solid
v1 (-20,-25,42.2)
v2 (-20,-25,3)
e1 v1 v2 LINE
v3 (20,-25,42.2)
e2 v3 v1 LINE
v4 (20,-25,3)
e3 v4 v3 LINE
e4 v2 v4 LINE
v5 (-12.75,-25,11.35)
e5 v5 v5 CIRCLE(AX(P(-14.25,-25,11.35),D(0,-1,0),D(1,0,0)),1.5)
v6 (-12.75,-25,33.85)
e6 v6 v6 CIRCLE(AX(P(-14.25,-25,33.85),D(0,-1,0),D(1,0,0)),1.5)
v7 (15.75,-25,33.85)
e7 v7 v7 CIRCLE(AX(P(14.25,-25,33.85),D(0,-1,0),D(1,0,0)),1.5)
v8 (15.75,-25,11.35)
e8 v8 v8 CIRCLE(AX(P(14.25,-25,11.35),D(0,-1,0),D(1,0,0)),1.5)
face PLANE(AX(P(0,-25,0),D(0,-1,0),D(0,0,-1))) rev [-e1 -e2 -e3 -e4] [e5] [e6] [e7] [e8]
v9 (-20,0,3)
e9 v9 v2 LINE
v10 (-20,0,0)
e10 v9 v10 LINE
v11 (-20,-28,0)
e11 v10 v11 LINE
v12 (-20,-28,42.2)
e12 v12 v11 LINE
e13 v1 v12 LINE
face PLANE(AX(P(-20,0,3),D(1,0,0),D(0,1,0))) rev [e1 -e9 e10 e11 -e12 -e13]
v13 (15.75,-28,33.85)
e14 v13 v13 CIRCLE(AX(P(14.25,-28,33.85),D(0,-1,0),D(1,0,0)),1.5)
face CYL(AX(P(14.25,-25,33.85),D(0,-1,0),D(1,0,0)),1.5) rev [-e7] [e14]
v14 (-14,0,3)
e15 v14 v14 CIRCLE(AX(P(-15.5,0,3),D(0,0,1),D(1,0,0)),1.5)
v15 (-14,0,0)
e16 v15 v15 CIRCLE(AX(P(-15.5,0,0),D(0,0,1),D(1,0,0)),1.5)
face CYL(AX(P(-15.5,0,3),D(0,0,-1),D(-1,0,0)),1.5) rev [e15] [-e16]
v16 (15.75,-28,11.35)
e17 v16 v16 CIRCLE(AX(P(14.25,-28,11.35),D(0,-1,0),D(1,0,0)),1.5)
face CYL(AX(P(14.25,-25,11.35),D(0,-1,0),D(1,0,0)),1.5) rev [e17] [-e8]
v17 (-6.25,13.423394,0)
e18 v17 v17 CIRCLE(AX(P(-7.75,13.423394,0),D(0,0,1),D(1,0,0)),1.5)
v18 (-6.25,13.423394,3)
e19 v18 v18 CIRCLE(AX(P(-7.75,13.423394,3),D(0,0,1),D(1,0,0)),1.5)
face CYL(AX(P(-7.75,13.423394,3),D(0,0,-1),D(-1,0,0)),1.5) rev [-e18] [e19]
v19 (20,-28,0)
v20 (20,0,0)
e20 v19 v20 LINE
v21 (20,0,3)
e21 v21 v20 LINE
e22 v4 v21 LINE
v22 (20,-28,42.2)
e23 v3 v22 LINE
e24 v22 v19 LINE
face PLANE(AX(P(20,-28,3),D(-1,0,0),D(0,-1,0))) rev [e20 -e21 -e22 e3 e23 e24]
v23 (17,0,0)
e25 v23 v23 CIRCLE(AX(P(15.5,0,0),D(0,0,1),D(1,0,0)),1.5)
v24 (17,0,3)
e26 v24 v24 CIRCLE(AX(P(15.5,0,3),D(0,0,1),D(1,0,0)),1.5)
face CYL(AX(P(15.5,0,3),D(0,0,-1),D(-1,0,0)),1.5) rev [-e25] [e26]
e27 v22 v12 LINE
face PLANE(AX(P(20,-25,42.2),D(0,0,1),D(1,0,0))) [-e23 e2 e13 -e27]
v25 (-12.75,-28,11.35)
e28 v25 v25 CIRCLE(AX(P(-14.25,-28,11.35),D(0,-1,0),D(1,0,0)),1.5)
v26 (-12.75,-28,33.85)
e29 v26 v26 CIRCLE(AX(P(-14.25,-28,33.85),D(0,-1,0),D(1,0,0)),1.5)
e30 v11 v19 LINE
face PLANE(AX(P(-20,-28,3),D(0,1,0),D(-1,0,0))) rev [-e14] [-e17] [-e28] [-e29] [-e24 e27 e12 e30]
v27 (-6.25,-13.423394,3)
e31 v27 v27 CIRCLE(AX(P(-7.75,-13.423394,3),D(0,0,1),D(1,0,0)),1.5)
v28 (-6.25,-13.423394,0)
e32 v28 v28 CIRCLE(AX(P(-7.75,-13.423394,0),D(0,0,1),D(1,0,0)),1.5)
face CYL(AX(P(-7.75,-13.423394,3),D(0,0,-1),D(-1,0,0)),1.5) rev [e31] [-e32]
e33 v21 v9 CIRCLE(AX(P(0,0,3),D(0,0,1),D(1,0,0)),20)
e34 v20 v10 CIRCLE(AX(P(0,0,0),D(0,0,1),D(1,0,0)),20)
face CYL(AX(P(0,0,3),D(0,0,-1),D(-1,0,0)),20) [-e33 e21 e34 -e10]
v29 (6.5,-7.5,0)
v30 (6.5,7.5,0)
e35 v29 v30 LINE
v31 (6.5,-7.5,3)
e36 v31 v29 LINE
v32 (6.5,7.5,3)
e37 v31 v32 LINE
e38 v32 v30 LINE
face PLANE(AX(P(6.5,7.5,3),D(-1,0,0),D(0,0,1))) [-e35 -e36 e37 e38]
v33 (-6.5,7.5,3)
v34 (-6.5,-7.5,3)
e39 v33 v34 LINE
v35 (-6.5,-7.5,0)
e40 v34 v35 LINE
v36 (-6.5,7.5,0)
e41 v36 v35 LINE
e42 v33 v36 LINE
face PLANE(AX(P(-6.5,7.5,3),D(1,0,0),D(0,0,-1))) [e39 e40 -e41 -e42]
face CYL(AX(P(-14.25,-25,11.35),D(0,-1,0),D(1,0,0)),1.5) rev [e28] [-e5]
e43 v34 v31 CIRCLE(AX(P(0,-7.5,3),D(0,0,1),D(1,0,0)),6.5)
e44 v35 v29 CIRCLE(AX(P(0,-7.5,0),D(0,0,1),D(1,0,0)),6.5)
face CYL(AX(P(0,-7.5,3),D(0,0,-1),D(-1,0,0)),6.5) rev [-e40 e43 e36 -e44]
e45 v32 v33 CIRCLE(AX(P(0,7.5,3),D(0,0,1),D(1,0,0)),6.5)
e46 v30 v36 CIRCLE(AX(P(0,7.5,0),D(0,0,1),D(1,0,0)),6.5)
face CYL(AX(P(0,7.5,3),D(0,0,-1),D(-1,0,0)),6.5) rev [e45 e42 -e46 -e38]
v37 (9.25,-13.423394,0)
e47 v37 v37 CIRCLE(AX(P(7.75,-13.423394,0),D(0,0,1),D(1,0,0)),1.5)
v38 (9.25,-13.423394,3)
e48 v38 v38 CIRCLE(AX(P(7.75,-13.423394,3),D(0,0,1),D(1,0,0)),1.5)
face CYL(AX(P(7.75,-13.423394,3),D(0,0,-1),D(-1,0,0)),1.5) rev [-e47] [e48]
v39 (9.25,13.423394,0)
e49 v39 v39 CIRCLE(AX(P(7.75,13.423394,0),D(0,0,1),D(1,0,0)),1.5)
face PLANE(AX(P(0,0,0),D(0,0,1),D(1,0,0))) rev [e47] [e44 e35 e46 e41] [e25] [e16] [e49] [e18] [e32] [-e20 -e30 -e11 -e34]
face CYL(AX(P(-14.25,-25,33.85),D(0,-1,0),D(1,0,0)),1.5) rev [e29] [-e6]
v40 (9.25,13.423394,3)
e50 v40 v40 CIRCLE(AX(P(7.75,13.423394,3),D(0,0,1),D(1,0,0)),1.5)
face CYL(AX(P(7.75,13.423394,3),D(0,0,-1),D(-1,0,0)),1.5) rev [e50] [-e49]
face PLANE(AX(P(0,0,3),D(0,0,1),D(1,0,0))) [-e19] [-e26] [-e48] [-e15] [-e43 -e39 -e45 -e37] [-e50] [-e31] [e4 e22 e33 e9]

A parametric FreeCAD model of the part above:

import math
import FreeCAD as App
import Part
import Sketcher
from FreeCAD import Vector

doc = App.newDocument("Part")
body = doc.addObject("PartDesign::Body", "Body")

sketch1 = doc.addObject("Sketcher::SketchObject", "Sketch")
body.addObject(sketch1)
sketch1.AttachmentSupport = (doc.XY_Plane, [""])
sketch1.MapMode = "FlatFace"
sketch1.addGeometry(Part.LineSegment(Vector(-20, 0, 0), Vector(-20, -28, 0)), False)
sketch1.addGeometry(Part.LineSegment(Vector(-20, -28, 0), Vector(20, -28, 0)), False)
sketch1.addGeometry(Part.LineSegment(Vector(20, -28, 0), Vector(20, 0, 0)), False)
sketch1.addGeometry(Part.ArcOfCircle(Part.Circle(Vector(0, 0, 0), Vector(0, 0, 1), 20), math.radians(0), math.radians(180)), False)
sketch1.addGeometry(Part.Circle(Vector(-7.75, -13.423394, 0), Vector(0, 0, 1), 1.5), False)
sketch1.addGeometry(Part.Circle(Vector(7.75, -13.423394, 0), Vector(0, 0, 1), 1.5), False)
sketch1.addGeometry(Part.Circle(Vector(-15.5, 0, 0), Vector(0, 0, 1), 1.5), False)
sketch1.addGeometry(Part.Circle(Vector(-7.75, 13.423394, 0), Vector(0, 0, 1), 1.5), False)
sketch1.addGeometry(Part.ArcOfCircle(Part.Circle(Vector(0, 7.5, 0), Vector(0, 0, 1), 6.5), math.radians(0), math.radians(180)), False)
sketch1.addGeometry(Part.LineSegment(Vector(6.5, 7.5, 0), Vector(6.5, -7.5, 0)), False)
sketch1.addGeometry(Part.ArcOfCircle(Part.Circle(Vector(0, -7.5, 0), Vector(0, 0, 1), 6.5), math.radians(180), math.radians(360)), False)
sketch1.addGeometry(Part.LineSegment(Vector(-6.5, -7.5, 0), Vector(-6.5, 7.5, 0)), False)
sketch1.addGeometry(Part.Circle(Vector(15.5, 0, 0), Vector(0, 0, 1), 1.5), False)
sketch1.addGeometry(Part.Circle(Vector(7.75, 13.423394, 0), Vector(0, 0, 1), 1.5), False)
sketch1.addConstraint(Sketcher.Constraint("Coincident", 0, 2, 1, 1))
sketch1.addConstraint(Sketcher.Constraint("Coincident", 1, 2, 2, 1))
sketch1.addConstraint(Sketcher.Constraint("Tangent", 2, 2, 3, 1))
sketch1.addConstraint(Sketcher.Constraint("Tangent", 3, 2, 0, 1))
sketch1.addConstraint(Sketcher.Constraint("Tangent", 8, 1, 9, 1))
sketch1.addConstraint(Sketcher.Constraint("Tangent", 9, 2, 10, 2))
sketch1.addConstraint(Sketcher.Constraint("Tangent", 10, 1, 11, 1))
sketch1.addConstraint(Sketcher.Constraint("Tangent", 11, 2, 8, 2))
sketch1.addConstraint(Sketcher.Constraint("Vertical", 0))
sketch1.addConstraint(Sketcher.Constraint("Horizontal", 1))
sketch1.addConstraint(Sketcher.Constraint("Vertical", 2))
sketch1.addConstraint(Sketcher.Constraint("Vertical", 9))
sketch1.addConstraint(Sketcher.Constraint("Vertical", 11))
sketch1.addConstraint(Sketcher.Constraint("Coincident", 3, 3, -1, 1))
sketch1.addConstraint(Sketcher.Constraint("Equal", 4, 5))
sketch1.addConstraint(Sketcher.Constraint("Equal", 5, 6))
sketch1.addConstraint(Sketcher.Constraint("Equal", 6, 7))
sketch1.addConstraint(Sketcher.Constraint("Equal", 7, 12))
sketch1.addConstraint(Sketcher.Constraint("Equal", 12, 13))
sketch1.addConstraint(Sketcher.Constraint("Symmetric", 5, 3, 7, 3, -1, 1))
sketch1.addConstraint(Sketcher.Constraint("Symmetric", 8, 3, 10, 3, -1, 1))
sketch1.addConstraint(Sketcher.Constraint("Symmetric", 6, 3, 12, 3, -1, 1))
sketch1.addConstraint(Sketcher.Constraint("Symmetric", 4, 3, 13, 3, -1, 1))
sketch1.addConstraint(Sketcher.Constraint("Symmetric", 4, 3, 5, 3, -2))
sketch1.addConstraint(Sketcher.Constraint("PointOnObject", 6, 3, -1))
sketch1.addConstraint(Sketcher.Constraint("Diameter", 4, 3.0))
sketch1.addConstraint(Sketcher.Constraint("Radius", 3, 20.0))
sketch1.addConstraint(Sketcher.Constraint("Radius", 8, 6.5))
sketch1.addConstraint(Sketcher.Constraint("DistanceY", 0, 2, 0, 1, 28.0))
sketch1.addConstraint(Sketcher.Constraint("DistanceY", 9, 2, 9, 1, 15.0))
sketch1.addConstraint(Sketcher.Constraint("DistanceX", 8, 1, 12, 3, 9.0))
sketch1.addConstraint(Sketcher.Constraint("DistanceX", 4, 3, 5, 3, 15.5))
sketch1.addConstraint(Sketcher.Constraint("DistanceY", 4, 3, -1, 1, 13.423394))
pad1 = doc.addObject("PartDesign::Pad", "Pad")
body.addObject(pad1)
pad1.Profile = sketch1
pad1.Length = 3

sketch2 = doc.addObject("Sketcher::SketchObject", "Sketch001")
body.addObject(sketch2)
sketch2.AttachmentSupport = (doc.XZ_Plane, [""])
sketch2.MapMode = "FlatFace"
sketch2.AttachmentOffset = App.Placement(Vector(0, 0, 28), App.Rotation())
sketch2.addGeometry(Part.LineSegment(Vector(-20, 42.2, 0), Vector(-20, 0, 0)), False)
sketch2.addGeometry(Part.LineSegment(Vector(-20, 0, 0), Vector(20, 0, 0)), False)
sketch2.addGeometry(Part.LineSegment(Vector(20, 0, 0), Vector(20, 42.2, 0)), False)
sketch2.addGeometry(Part.LineSegment(Vector(20, 42.2, 0), Vector(-20, 42.2, 0)), False)
sketch2.addGeometry(Part.Circle(Vector(-14.25, 11.35, 0), Vector(0, 0, 1), 1.5), False)
sketch2.addGeometry(Part.Circle(Vector(14.25, 11.35, 0), Vector(0, 0, 1), 1.5), False)
sketch2.addGeometry(Part.Circle(Vector(-14.25, 33.85, 0), Vector(0, 0, 1), 1.5), False)
sketch2.addGeometry(Part.Circle(Vector(14.25, 33.85, 0), Vector(0, 0, 1), 1.5), False)
sketch2.addConstraint(Sketcher.Constraint("Coincident", 0, 2, 1, 1))
sketch2.addConstraint(Sketcher.Constraint("Coincident", 1, 2, 2, 1))
sketch2.addConstraint(Sketcher.Constraint("Coincident", 2, 2, 3, 1))
sketch2.addConstraint(Sketcher.Constraint("Coincident", 3, 2, 0, 1))
sketch2.addConstraint(Sketcher.Constraint("Vertical", 0))
sketch2.addConstraint(Sketcher.Constraint("Horizontal", 1))
sketch2.addConstraint(Sketcher.Constraint("Vertical", 2))
sketch2.addConstraint(Sketcher.Constraint("Horizontal", 3))
sketch2.addConstraint(Sketcher.Constraint("Equal", 4, 5))
sketch2.addConstraint(Sketcher.Constraint("Equal", 5, 6))
sketch2.addConstraint(Sketcher.Constraint("Equal", 6, 7))
sketch2.addConstraint(Sketcher.Constraint("Symmetric", 0, 2, 1, 2, -1, 1))
sketch2.addConstraint(Sketcher.Constraint("Symmetric", 4, 3, 5, 3, -2))
sketch2.addConstraint(Sketcher.Constraint("Symmetric", 6, 3, 7, 3, -2))
sketch2.addConstraint(Sketcher.Constraint("Vertical", 4, 3, 6, 3))
sketch2.addConstraint(Sketcher.Constraint("Diameter", 4, 3.0))
sketch2.addConstraint(Sketcher.Constraint("DistanceX", 1, 1, 1, 2, 40.0))
sketch2.addConstraint(Sketcher.Constraint("DistanceY", 0, 2, 0, 1, 42.2))
sketch2.addConstraint(Sketcher.Constraint("DistanceX", 4, 3, 5, 3, 28.5))
sketch2.addConstraint(Sketcher.Constraint("DistanceY", 4, 3, 6, 3, 22.5))
sketch2.addConstraint(Sketcher.Constraint("DistanceY", -1, 1, 4, 3, 11.35))
pad2 = doc.addObject("PartDesign::Pad", "Pad001")
body.addObject(pad2)
pad2.Profile = sketch2
pad2.Length = 3
pad2.Reversed = True

doc.recompute()
